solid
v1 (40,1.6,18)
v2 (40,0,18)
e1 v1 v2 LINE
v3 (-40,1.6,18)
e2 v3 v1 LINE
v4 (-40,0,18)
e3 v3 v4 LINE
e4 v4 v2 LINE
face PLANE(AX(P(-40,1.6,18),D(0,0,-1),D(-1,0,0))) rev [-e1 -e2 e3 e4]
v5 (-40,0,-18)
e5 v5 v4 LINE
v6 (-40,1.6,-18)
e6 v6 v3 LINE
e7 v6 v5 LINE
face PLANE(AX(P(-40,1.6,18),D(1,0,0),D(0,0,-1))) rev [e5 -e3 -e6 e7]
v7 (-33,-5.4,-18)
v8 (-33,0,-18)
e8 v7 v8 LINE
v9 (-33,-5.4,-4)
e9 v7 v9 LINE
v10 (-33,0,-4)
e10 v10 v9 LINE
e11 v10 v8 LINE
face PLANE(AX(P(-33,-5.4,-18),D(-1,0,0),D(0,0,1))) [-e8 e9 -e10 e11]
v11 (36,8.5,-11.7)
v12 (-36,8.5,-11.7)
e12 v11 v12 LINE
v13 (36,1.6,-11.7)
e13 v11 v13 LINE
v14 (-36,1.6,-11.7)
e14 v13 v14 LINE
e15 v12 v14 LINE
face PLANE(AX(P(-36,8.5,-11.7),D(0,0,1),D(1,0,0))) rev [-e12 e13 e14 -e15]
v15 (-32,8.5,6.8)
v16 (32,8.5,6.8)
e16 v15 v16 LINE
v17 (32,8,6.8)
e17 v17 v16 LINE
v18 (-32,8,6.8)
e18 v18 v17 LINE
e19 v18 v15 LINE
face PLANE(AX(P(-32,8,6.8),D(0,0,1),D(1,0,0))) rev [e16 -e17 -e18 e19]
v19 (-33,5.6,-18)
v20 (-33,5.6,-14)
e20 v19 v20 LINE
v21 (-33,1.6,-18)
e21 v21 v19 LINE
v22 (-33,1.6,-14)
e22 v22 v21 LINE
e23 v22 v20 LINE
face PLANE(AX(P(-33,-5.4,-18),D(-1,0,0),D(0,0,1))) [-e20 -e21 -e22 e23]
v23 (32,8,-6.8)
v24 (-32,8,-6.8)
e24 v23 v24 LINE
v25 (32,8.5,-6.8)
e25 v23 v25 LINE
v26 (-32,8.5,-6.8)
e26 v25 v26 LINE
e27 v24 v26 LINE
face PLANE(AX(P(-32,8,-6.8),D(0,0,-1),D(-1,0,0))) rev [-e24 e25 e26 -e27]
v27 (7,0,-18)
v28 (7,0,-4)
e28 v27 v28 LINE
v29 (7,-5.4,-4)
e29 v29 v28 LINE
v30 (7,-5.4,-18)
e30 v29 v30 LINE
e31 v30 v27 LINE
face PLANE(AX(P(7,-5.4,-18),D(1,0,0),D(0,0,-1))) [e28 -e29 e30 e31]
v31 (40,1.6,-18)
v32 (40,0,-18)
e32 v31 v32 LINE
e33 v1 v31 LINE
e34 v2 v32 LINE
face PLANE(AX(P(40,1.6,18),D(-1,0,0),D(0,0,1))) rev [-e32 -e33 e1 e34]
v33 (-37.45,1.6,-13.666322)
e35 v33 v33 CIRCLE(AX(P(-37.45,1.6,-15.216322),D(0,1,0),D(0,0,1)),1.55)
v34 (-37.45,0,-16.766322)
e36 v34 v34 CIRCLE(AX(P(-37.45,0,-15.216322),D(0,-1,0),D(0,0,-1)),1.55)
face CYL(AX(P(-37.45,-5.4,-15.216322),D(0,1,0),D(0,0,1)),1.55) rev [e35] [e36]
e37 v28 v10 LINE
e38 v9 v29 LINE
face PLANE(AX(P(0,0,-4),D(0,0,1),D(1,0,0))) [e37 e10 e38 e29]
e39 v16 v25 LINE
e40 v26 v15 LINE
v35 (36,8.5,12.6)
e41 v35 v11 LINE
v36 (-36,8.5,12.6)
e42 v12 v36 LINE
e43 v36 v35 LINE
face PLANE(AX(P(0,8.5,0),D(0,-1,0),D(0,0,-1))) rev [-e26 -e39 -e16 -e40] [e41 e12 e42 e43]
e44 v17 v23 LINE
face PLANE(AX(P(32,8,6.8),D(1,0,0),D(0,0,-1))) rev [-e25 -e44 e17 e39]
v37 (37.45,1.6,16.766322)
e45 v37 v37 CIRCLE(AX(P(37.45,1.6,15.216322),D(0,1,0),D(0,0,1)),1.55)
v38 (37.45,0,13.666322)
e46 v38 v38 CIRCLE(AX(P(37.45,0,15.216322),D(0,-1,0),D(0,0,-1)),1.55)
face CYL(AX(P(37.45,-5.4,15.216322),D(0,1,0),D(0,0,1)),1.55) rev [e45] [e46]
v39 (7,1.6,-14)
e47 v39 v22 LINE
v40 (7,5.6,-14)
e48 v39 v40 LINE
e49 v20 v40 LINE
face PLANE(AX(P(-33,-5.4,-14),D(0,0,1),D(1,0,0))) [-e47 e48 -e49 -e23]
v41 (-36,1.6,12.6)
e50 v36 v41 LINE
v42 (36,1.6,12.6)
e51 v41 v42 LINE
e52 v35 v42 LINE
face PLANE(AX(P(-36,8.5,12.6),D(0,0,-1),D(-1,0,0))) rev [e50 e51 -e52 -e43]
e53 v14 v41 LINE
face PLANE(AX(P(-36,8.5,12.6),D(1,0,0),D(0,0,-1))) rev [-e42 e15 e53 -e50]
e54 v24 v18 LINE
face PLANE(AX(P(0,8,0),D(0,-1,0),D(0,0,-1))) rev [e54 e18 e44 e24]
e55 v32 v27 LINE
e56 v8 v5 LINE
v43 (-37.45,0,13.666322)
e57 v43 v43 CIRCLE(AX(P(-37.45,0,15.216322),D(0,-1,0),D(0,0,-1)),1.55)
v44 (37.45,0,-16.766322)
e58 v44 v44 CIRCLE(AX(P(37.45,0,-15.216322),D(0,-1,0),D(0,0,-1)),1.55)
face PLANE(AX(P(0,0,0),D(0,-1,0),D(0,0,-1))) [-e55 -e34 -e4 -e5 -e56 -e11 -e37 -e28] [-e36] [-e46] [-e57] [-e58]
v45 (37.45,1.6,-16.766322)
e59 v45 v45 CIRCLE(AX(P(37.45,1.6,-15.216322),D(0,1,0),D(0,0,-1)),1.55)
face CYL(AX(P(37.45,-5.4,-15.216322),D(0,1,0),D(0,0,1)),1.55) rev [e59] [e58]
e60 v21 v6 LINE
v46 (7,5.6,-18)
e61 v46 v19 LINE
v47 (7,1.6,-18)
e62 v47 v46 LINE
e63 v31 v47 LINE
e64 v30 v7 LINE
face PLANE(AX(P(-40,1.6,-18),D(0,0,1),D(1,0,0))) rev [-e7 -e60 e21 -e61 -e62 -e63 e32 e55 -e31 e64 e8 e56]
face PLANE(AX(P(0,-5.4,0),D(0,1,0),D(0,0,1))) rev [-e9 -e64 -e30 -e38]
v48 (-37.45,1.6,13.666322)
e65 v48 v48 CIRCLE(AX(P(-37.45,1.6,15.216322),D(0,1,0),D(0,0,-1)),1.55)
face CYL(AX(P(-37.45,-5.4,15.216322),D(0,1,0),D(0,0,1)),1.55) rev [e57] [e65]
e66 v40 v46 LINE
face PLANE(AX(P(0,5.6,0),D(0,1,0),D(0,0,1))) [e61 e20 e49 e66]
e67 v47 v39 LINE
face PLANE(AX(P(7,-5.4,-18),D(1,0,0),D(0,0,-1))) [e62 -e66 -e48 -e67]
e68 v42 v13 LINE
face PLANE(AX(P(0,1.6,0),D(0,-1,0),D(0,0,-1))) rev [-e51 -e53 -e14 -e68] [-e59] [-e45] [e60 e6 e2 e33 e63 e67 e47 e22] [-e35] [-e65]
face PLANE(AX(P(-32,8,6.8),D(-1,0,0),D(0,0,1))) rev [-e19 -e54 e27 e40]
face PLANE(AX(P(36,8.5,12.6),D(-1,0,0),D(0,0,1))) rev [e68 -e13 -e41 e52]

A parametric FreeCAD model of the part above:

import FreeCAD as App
import Part
import Sketcher
Q = App.Units.Quantity

doc = App.newDocument("Part")
body = doc.addObject("PartDesign::Body", "Body")

# Sketch on XZ plane
sketch1 = body.newObject("Sketcher::SketchObject", "Sketch")
sketch1.AttachmentSupport = (doc.getObject("XZ_Plane"), [""])
sketch1.MapMode = "FlatFace"
sketch1.addGeometry(Part.LineSegment(App.Vector(-40, -18, 0), App.Vector(-40, 18, 0)), False)
sketch1.addGeometry(Part.LineSegment(App.Vector(-40, 18, 0), App.Vector(40, 18, 0)), False)
sketch1.addGeometry(Part.LineSegment(App.Vector(40, 18, 0), App.Vector(40, -18, 0)), False)
sketch1.addGeometry(Part.LineSegment(App.Vector(40, -18, 0), App.Vector(-40, -18, 0)), False)
sketch1.addConstraint(Sketcher.Constraint("Coincident", 0, 2, 1, 1))
sketch1.addConstraint(Sketcher.Constraint("Coincident", 1, 2, 2, 1))
sketch1.addConstraint(Sketcher.Constraint("Coincident", 2, 2, 3, 1))
sketch1.addConstraint(Sketcher.Constraint("Coincident", 3, 2, 0, 1))
sketch1.addConstraint(Sketcher.Constraint("Vertical", 0))
sketch1.addConstraint(Sketcher.Constraint("Horizontal", 1))
sketch1.addConstraint(Sketcher.Constraint("Vertical", 2))
sketch1.addConstraint(Sketcher.Constraint("Horizontal", 3))
sketch1.addConstraint(Sketcher.Constraint("Symmetric", 0, 2, 2, 2, -1, 1))
sketch1.addConstraint(Sketcher.Constraint("DistanceX", 1, 1, 1, 2, Q("80 mm")))
sketch1.addConstraint(Sketcher.Constraint("DistanceY", 0, 1, 0, 2, Q("36 mm")))
pad1 = body.newObject("PartDesign::Pad", "Pad")
pad1.Profile = sketch1
pad1.Length = 1.6
pad1.Reversed = True

# Sketch on XZ plane
sketch2 = body.newObject("Sketcher::SketchObject", "Sketch001")
sketch2.AttachmentSupport = (doc.getObject("XZ_Plane"), [""])
sketch2.MapMode = "FlatFace"
sketch2.AttachmentOffset = App.Placement(App.Vector(0, 0, -1.6), App.Rotation())
sketch2.addGeometry(Part.LineSegment(App.Vector(-36, -12, 0), App.Vector(-36, 13, 0)), False)
sketch2.addGeometry(Part.LineSegment(App.Vector(-36, 13, 0), App.Vector(36, 13, 0)), False)
sketch2.addGeometry(Part.LineSegment(App.Vector(36, 13, 0), App.Vector(36, -12, 0)), False)
sketch2.addGeometry(Part.LineSegment(App.Vector(36, -12, 0), App.Vector(-36, -12, 0)), False)
sketch2.addConstraint(Sketcher.Constraint("Coincident", 0, 2, 1, 1))
sketch2.addConstraint(Sketcher.Constraint("Coincident", 1, 2, 2, 1))
sketch2.addConstraint(Sketcher.Constraint("Coincident", 2, 2, 3, 1))
sketch2.addConstraint(Sketcher.Constraint("Coincident", 3, 2, 0, 1))
sketch2.addConstraint(Sketcher.Constraint("Vertical", 0))
sketch2.addConstraint(Sketcher.Constraint("Horizontal", 1))
sketch2.addConstraint(Sketcher.Constraint("Vertical", 2))
sketch2.addConstraint(Sketcher.Constraint("Horizontal", 3))
sketch2.addConstraint(Sketcher.Constraint("DistanceX", 1, 1, 1, 2, Q("72 mm")))
sketch2.addConstraint(Sketcher.Constraint("DistanceY", 0, 1, 0, 2, Q("24.3 mm")))
sketch2.addConstraint(Sketcher.Constraint("DistanceX", 0, 2, -1, 1, Q("36 mm")))
sketch2.addConstraint(Sketcher.Constraint("DistanceY", -1, 1, 0, 2, Q("12.6 mm")))
pad2 = body.newObject("PartDesign::Pad", "Pad001")
pad2.Profile = sketch2
pad2.Length = 6.9
pad2.Reversed = True

# Sketch on XZ plane
sketch3 = body.newObject("Sketcher::SketchObject", "Sketch002")
sketch3.AttachmentSupport = (doc.getObject("XZ_Plane"), [""])
sketch3.MapMode = "FlatFace"
sketch3.AttachmentOffset = App.Placement(App.Vector(0, 0, -8.5), App.Rotation())
sketch3.addGeometry(Part.LineSegment(App.Vector(-32, -7, 0), App.Vector(-32, 7, 0)), False)
sketch3.addGeometry(Part.LineSegment(App.Vector(-32, 7, 0), App.Vector(32, 7, 0)), False)
sketch3.addGeometry(Part.LineSegment(App.Vector(32, 7, 0), App.Vector(32, -7, 0)), False)
sketch3.addGeometry(Part.LineSegment(App.Vector(32, -7, 0), App.Vector(-32, -7, 0)), False)
sketch3.addConstraint(Sketcher.Constraint("Coincident", 0, 2, 1, 1))
sketch3.addConstraint(Sketcher.Constraint("Coincident", 1, 2, 2, 1))
sketch3.addConstraint(Sketcher.Constraint("Coincident", 2, 2, 3, 1))
sketch3.addConstraint(Sketcher.Constraint("Coincident", 3, 2, 0, 1))
sketch3.addConstraint(Sketcher.Constraint("Vertical", 0))
sketch3.addConstraint(Sketcher.Constraint("Horizontal", 1))
sketch3.addConstraint(Sketcher.Constraint("Vertical", 2))
sketch3.addConstraint(Sketcher.Constraint("Horizontal", 3))
sketch3.addConstraint(Sketcher.Constraint("Symmetric", 0, 2, 2, 2, -1, 1))
sketch3.addConstraint(Sketcher.Constraint("DistanceX", 1, 1, 1, 2, Q("64 mm")))
sketch3.addConstraint(Sketcher.Constraint("DistanceY", 0, 1, 0, 2, Q("13.6 mm")))
pocket1 = body.newObject("PartDesign::Pocket", "Pocket")
pocket1.Profile = sketch3
pocket1.Length = 0.5
pocket1.Reversed = True

# Sketch on XZ plane
sketch4 = body.newObject("Sketcher::SketchObject", "Sketch003")
sketch4.AttachmentSupport = (doc.getObject("XZ_Plane"), [""])
sketch4.MapMode = "FlatFace"
sketch4.AttachmentOffset = App.Placement(App.Vector(0, 0, -1.6), App.Rotation())
sketch4.addGeometry(Part.LineSegment(App.Vector(-33, -18, 0), App.Vector(-33, -14, 0)), False)
sketch4.addGeometry(Part.LineSegment(App.Vector(-33, -14, 0), App.Vector(7, -14, 0)), False)
sketch4.addGeometry(Part.LineSegment(App.Vector(7, -14, 0), App.Vector(7, -18, 0)), False)
sketch4.addGeometry(Part.LineSegment(App.Vector(7, -18, 0), App.Vector(-33, -18, 0)), False)
sketch4.addConstraint(Sketcher.Constraint("Coincident", 0, 2, 1, 1))
sketch4.addConstraint(Sketcher.Constraint("Coincident", 1, 2, 2, 1))
sketch4.addConstraint(Sketcher.Constraint("Coincident", 2, 2, 3, 1))
sketch4.addConstraint(Sketcher.Constraint("Coincident", 3, 2, 0, 1))
sketch4.addConstraint(Sketcher.Constraint("Vertical", 0))
sketch4.addConstraint(Sketcher.Constraint("Horizontal", 1))
sketch4.addConstraint(Sketcher.Constraint("Vertical", 2))
sketch4.addConstraint(Sketcher.Constraint("Horizontal", 3))
sketch4.addConstraint(Sketcher.Constraint("DistanceX", 1, 1, 1, 2, Q("40 mm")))
sketch4.addConstraint(Sketcher.Constraint("DistanceY", 0, 1, 0, 2, Q("4 mm")))
sketch4.addConstraint(Sketcher.Constraint("DistanceX", 0, 2, -1, 1, Q("33 mm")))
sketch4.addConstraint(Sketcher.Constraint("DistanceY", 0, 2, -1, 1, Q("14 mm")))
pad3 = body.newObject("PartDesign::Pad", "Pad002")
pad3.Profile = sketch4
pad3.Type = "TwoLengths"
pad3.Length = 4
pad3.Length2 = 7
pad3.Reversed = True

# Sketch on XZ plane
sketch5 = body.newObject("Sketcher::SketchObject", "Sketch004")
sketch5.AttachmentSupport = (doc.getObject("XZ_Plane"), [""])
sketch5.MapMode = "FlatFace"
sketch5.AttachmentOffset = App.Placement(App.Vector(0, 0, -1.6), App.Rotation())
sketch5.addGeometry(Part.Circle(App.Vector(-37.5, -15.2, 0), App.Vector(0, 0, 1), 1.6), False)
sketch5.addGeometry(Part.Circle(App.Vector(37.5, -15.2, 0), App.Vector(0, 0, 1), 1.6), False)
sketch5.addGeometry(Part.Circle(App.Vector(37.5, 15.2, 0), App.Vector(0, 0, 1), 1.6), False)
sketch5.addGeometry(Part.Circle(App.Vector(-37.5, 15.2, 0), App.Vector(0, 0, 1), 1.6), False)
sketch5.addConstraint(Sketcher.Constraint("Equal", 0, 1))
sketch5.addConstraint(Sketcher.Constraint("Equal", 1, 2))
sketch5.addConstraint(Sketcher.Constraint("Equal", 2, 3))
sketch5.addConstraint(Sketcher.Constraint("Symmetric", 0, 3, 2, 3, -1, 1))
sketch5.addConstraint(Sketcher.Constraint("Symmetric", 1, 3, 3, 3, -1, 1))
sketch5.addConstraint(Sketcher.Constraint("Symmetric", 0, 3, 1, 3, -2))
sketch5.addConstraint(Sketcher.Constraint("Diameter", 0, Q("3.1 mm")))
sketch5.addConstraint(Sketcher.Constraint("DistanceX", 0, 3, 1, 3, Q("74.9 mm")))
sketch5.addConstraint(Sketcher.Constraint("DistanceY", 0, 3, -1, 1, Q("15.216322 mm")))
pocket2 = body.newObject("PartDesign::Pocket", "Pocket001")
pocket2.Profile = sketch5
pocket2.Type = "ThroughAll"
pocket2.Reversed = True

# Sketch on XY plane
sketch6 = body.newObject("Sketcher::SketchObject", "Sketch005")
sketch6.AttachmentSupport = (doc.getObject("XY_Plane"), [""])
sketch6.MapMode = "FlatFace"
sketch6.AttachmentOffset = App.Placement(App.Vector(0, 0, -14), App.Rotation())
sketch6.addGeometry(Part.LineSegment(App.Vector(-33, 0, 0), App.Vector(-33, -5, 0)), False)
sketch6.addGeometry(Part.LineSegment(App.Vector(-33, -5, 0), App.Vector(7, -5, 0)), False)
sketch6.addGeometry(Part.LineSegment(App.Vector(7, -5, 0), App.Vector(7, 0, 0)), False)
sketch6.addGeometry(Part.LineSegment(App.Vector(7, 0, 0), App.Vector(-33, 0, 0)), False)
sketch6.addConstraint(Sketcher.Constraint("Coincident", 0, 2, 1, 1))
sketch6.addConstraint(Sketcher.Constraint("Coincident", 1, 2, 2, 1))
sketch6.addConstraint(Sketcher.Constraint("Coincident", 2, 2, 3, 1))
sketch6.addConstraint(Sketcher.Constraint("Coincident", 3, 2, 0, 1))
sketch6.addConstraint(Sketcher.Constraint("Vertical", 0))
sketch6.addConstraint(Sketcher.Constraint("Horizontal", 1))
sketch6.addConstraint(Sketcher.Constraint("Vertical", 2))
sketch6.addConstraint(Sketcher.Constraint("Horizontal", 3))
sketch6.addConstraint(Sketcher.Constraint("PointOnObject", 2, 2, -1))
sketch6.addConstraint(Sketcher.Constraint("DistanceX", 1, 1, 1, 2, Q("40 mm")))
sketch6.addConstraint(Sketcher.Constraint("DistanceY", 0, 2, 0, 1, Q("5.4 mm")))
sketch6.addConstraint(Sketcher.Constraint("DistanceX", 0, 2, -1, 1, Q("33 mm")))
pad4 = body.newObject("PartDesign::Pad", "Pad003")
pad4.Profile = sketch6
pad4.Length = 10

doc.recompute()
